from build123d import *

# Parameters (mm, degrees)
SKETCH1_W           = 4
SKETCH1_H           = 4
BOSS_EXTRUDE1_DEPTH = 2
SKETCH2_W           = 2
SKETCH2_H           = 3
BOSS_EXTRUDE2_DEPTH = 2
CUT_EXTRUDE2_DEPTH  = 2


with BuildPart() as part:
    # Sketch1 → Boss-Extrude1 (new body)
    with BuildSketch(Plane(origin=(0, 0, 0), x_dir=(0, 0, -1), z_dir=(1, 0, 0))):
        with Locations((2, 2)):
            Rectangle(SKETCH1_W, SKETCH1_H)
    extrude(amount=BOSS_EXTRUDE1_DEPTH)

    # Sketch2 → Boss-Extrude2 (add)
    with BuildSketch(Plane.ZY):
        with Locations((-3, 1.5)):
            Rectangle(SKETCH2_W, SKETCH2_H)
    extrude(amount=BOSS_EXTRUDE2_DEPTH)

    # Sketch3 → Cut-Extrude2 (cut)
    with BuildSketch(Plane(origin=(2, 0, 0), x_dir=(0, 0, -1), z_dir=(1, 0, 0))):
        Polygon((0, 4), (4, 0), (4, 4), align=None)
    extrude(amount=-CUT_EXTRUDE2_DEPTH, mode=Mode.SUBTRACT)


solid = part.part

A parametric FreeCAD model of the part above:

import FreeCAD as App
import Part
import Sketcher

V = App.Vector
Q = App.Units.Quantity

doc = App.newDocument("Part")
body = doc.addObject("PartDesign::Body", "Body")

# Sketch on YZ plane
sketch1 = doc.addObject("Sketcher::SketchObject", "Sketch")
body.addObject(sketch1)
sketch1.AttachmentSupport = (doc.YZ_Plane, [""])
sketch1.MapMode = "FlatFace"
sketch1.addGeometry([
    Part.LineSegment(V(4, 0, 0), V(0, 0, 0)),
    Part.LineSegment(V(0, 0, 0), V(0, -4, 0)),
    Part.LineSegment(V(0, -4, 0), V(4, -4, 0)),
    Part.LineSegment(V(4, -4, 0), V(4, 0, 0)),
], False)
sketch1.addConstraint([
    Sketcher.Constraint("Coincident", 0, 2, 1, 1),
    Sketcher.Constraint("Coincident", 1, 2, 2, 1),
    Sketcher.Constraint("Coincident", 2, 2, 3, 1),
    Sketcher.Constraint("Coincident", 3, 2, 0, 1),
    Sketcher.Constraint("Horizontal", 0),
    Sketcher.Constraint("Vertical", 1),
    Sketcher.Constraint("Horizontal", 2),
    Sketcher.Constraint("Vertical", 3),
    Sketcher.Constraint("Coincident", 0, 2, -1, 1),
    Sketcher.Constraint("Equal", 2, 1),
    Sketcher.Constraint("DistanceX", 0, 2, 0, 1, Q("4 mm")),
])
pad1 = doc.addObject("PartDesign::Pad", "Pad")
body.addObject(pad1)
pad1.Profile = sketch1
pad1.Length = 2

# Sketch on YZ plane
sketch2 = doc.addObject("Sketcher::SketchObject", "Sketch001")
body.addObject(sketch2)
sketch2.AttachmentSupport = (doc.YZ_Plane, [""])
sketch2.MapMode = "FlatFace"
sketch2.addGeometry([
    Part.LineSegment(V(3, -4, 0), V(0, -4, 0)),
    Part.LineSegment(V(0, -4, 0), V(0, -2, 0)),
    Part.LineSegment(V(0, -2, 0), V(3, -2, 0)),
    Part.LineSegment(V(3, -2, 0), V(3, -4, 0)),
], False)
sketch2.addConstraint([
    Sketcher.Constraint("Coincident", 0, 2, 1, 1),
    Sketcher.Constraint("Coincident", 1, 2, 2, 1),
    Sketcher.Constraint("Coincident", 2, 2, 3, 1),
    Sketcher.Constraint("Coincident", 3, 2, 0, 1),
    Sketcher.Constraint("Horizontal", 0),
    Sketcher.Constraint("Vertical", 1),
    Sketcher.Constraint("Horizontal", 2),
    Sketcher.Constraint("Vertical", 3),
    Sketcher.Constraint("PointOnObject", 0, 2, -2),
    Sketcher.Constraint("DistanceX", 0, 2, 0, 1, Q("3 mm")),
    Sketcher.Constraint("DistanceY", 1, 1, 1, 2, Q("2 mm")),
    Sketcher.Constraint("DistanceY", 0, 2, -1, 1, Q("4 mm")),
])
pad2 = doc.addObject("PartDesign::Pad", "Pad001")
body.addObject(pad2)
pad2.Profile = sketch2
pad2.Length = 2
pad2.Reversed = True

# Sketch on YZ plane
sketch3 = doc.addObject("Sketcher::SketchObject", "Sketch002")
body.addObject(sketch3)
sketch3.AttachmentSupport = (doc.YZ_Plane, [""])
sketch3.MapMode = "FlatFace"
sketch3.AttachmentOffset = App.Placement(V(0, 0, 2), App.Rotation())
sketch3.addGeometry([
    Part.LineSegment(V(4, 0, 0), V(0, -4, 0)),
    Part.LineSegment(V(0, -4, 0), V(4, -4, 0)),
    Part.LineSegment(V(4, -4, 0), V(4, 0, 0)),
], False)
sketch3.addConstraint([
    Sketcher.Constraint("Coincident", 0, 2, 1, 1),
    Sketcher.Constraint("Coincident", 1, 2, 2, 1),
    Sketcher.Constraint("Coincident", 2, 2, 0, 1),
    Sketcher.Constraint("Horizontal", 1),
    Sketcher.Constraint("Vertical", 2),
    Sketcher.Constraint("PointOnObject", 0, 2, -2),
    Sketcher.Constraint("PointOnObject", 2, 2, -1),
    Sketcher.Constraint("Equal", 1, 2),
    Sketcher.Constraint("DistanceX", 1, 1, 1, 2, Q("4 mm")),
])
pocket1 = doc.addObject("PartDesign::Pocket", "Pocket")
body.addObject(pocket1)
pocket1.Profile = sketch3
pocket1.Length = 2

doc.recompute()
